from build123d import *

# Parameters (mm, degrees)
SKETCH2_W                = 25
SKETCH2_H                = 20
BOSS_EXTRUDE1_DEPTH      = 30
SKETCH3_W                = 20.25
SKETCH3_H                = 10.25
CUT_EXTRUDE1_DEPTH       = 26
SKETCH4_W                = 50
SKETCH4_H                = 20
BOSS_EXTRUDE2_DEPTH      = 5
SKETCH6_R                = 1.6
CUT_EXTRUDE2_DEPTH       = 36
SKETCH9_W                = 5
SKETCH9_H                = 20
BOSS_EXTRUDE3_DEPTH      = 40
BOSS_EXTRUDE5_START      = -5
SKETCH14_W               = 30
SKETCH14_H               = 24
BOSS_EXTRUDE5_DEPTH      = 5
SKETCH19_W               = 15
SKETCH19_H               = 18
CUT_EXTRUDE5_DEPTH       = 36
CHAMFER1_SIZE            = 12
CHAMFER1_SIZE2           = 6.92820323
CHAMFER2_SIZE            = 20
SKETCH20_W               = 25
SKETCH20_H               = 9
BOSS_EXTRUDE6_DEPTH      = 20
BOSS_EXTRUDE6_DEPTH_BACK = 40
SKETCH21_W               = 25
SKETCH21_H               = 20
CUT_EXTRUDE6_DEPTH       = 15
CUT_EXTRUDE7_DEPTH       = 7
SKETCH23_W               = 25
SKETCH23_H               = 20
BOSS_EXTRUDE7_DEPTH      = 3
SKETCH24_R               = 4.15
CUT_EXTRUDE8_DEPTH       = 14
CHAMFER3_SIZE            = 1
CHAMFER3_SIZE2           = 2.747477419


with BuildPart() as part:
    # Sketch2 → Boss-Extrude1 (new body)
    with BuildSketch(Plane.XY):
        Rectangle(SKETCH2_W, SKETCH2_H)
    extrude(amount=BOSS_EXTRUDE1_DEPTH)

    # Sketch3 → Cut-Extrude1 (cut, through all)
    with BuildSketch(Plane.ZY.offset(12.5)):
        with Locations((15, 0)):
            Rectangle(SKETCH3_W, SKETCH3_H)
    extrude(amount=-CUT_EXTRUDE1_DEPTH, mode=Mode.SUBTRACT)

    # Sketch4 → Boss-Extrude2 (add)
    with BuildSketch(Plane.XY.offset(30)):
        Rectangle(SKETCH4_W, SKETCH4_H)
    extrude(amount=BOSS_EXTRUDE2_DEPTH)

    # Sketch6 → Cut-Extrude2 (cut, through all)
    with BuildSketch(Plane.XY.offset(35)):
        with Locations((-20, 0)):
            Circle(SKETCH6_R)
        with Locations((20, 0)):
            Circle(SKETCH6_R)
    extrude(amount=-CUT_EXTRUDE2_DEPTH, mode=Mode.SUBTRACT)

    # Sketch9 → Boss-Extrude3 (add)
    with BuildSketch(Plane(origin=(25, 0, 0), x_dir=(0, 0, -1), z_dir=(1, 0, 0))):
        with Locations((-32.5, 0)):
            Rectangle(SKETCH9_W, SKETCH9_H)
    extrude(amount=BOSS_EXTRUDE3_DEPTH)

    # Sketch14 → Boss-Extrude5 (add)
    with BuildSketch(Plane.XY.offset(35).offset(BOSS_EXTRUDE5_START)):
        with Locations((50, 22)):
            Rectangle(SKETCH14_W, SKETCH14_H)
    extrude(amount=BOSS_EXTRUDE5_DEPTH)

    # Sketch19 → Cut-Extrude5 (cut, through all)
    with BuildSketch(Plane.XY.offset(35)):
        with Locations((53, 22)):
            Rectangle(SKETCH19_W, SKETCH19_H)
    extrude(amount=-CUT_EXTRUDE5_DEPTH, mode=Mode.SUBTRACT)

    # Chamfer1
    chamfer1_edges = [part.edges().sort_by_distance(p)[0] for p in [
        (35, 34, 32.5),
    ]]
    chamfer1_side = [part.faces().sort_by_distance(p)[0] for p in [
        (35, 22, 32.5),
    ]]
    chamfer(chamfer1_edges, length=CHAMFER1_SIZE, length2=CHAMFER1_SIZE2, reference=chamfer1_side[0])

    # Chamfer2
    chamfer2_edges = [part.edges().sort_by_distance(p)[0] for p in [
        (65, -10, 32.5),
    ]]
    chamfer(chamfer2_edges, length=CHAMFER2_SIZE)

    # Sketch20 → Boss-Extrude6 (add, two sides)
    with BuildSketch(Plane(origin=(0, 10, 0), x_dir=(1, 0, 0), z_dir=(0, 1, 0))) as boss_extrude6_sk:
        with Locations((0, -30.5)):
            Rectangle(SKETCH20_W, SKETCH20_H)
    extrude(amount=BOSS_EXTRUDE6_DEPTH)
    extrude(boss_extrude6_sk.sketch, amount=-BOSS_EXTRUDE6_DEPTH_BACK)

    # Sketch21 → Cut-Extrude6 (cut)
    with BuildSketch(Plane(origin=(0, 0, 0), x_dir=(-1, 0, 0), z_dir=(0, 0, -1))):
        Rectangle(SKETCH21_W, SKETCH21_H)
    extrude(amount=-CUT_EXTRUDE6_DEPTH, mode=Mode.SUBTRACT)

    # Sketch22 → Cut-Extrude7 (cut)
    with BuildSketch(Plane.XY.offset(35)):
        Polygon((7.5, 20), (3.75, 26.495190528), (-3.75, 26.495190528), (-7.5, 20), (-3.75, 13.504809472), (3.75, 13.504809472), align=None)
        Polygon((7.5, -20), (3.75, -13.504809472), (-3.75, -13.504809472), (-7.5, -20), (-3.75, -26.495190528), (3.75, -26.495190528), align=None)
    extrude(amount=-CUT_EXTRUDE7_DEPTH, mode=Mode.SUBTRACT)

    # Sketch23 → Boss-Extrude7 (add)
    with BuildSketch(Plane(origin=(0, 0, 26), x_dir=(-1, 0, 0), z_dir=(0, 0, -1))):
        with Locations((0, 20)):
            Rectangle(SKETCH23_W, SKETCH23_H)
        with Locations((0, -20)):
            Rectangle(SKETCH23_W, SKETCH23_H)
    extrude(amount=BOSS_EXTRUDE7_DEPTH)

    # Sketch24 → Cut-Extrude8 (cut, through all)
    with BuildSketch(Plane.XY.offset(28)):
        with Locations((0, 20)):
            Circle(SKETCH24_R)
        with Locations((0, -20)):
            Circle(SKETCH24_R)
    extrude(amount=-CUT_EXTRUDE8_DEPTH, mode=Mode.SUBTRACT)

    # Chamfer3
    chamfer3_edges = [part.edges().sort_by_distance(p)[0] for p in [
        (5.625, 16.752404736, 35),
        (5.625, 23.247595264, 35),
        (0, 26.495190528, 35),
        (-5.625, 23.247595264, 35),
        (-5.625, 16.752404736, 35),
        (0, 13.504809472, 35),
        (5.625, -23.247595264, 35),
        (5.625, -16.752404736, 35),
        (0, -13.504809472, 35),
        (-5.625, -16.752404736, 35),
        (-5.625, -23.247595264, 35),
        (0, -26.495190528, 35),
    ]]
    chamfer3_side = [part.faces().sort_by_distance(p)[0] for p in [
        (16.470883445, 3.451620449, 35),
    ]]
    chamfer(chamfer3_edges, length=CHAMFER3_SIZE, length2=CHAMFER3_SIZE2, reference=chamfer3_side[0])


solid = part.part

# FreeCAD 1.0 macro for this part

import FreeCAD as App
import Part
import Sketcher
from FreeCAD import Vector
Q = App.Units.Quantity


def edges_at(feature, points):
    """Names of the edges that pass closest to the given points."""
    edges = feature.Shape.Edges
    near = lambda p: min(range(len(edges)), key=lambda i: edges[i].distToShape(Part.Vertex(*p))[0])
    return sorted({f"Edge{near(p) + 1}" for p in points})


def add_polygon(sketch, points):
    """Adds a closed chain of lines whose ends are joined by coincident constraints."""
    first, n = sketch.GeometryCount, len(points)
    for a, b in zip(points, points[1:] + points[:1]):
        sketch.addGeometry(Part.LineSegment(App.Vector(*a, 0), App.Vector(*b, 0)), False)
    for i in range(n):
        sketch.addConstraint(Sketcher.Constraint("Coincident", first + i, 2, first + (i + 1) % n, 1))

doc = App.newDocument("Part")
params = doc.addObject("Spreadsheet::Sheet", "Params")
for row, (alias, value) in enumerate([
    ("sketch1_width", "25 mm"),
    ("sketch1_height", "20 mm"),
    ("pad1_length", "30 mm"),
    ("sketch2_width", "10.25 mm"),
    ("sketch2_height", "20.25 mm"),
    ("sketch3_width", "50 mm"),
    ("sketch3_height", "20 mm"),
    ("pad2_length", "5 mm"),
    ("sketch4_diameter", "3.2 mm"),
    ("sketch5_width", "20 mm"),
    ("sketch5_height", "5 mm"),
    ("pad3_length", "40 mm"),
    ("sketch6_width", "30 mm"),
    ("sketch6_height", "24 mm"),
    ("pad4_length", "5 mm"),
    ("sketch7_width", "15 mm"),
    ("sketch7_height", "18 mm"),
    ("chamfer_size", "12 mm"),
    ("chamfer_size2", "6.928203 mm"),
    ("chamfer2_size", "20 mm"),
    ("sketch8_width", "25 mm"),
    ("sketch8_height", "9 mm"),
    ("pad5_length", "20 mm"),
    ("pad5_length2", "40 mm"),
    ("sketch9_width", "25 mm"),
    ("sketch9_height", "20 mm"),
    ("pocket4_length", "15 mm"),
    ("sketch10_width", "7.5 mm"),
    ("pocket5_length", "7 mm"),
    ("sketch11_width", "25 mm"),
    ("sketch11_height", "20 mm"),
    ("pad6_length", "3 mm"),
    ("sketch12_diameter", "8.3 mm"),
    ("chamfer3_size", "1 mm"),
    ("chamfer3_size2", "2.747477 mm"),
], start=1):
    params.set(f"A{row}", alias)
    params.set(f"B{row}", "=" + value)
    params.setAlias(f"B{row}", alias)

body = doc.addObject("PartDesign::Body", "Body")

sketch1 = doc.addObject("Sketcher::SketchObject", "Sketch")
body.addObject(sketch1)
sketch1.AttachmentSupport = (doc.XY_Plane, [""])
sketch1.MapMode = "FlatFace"
add_polygon(sketch1, [(-12, 10), (-12, -10), (12, -10), (12, 10)])
sketch1.addConstraint(Sketcher.Constraint("Vertical", 0))
sketch1.addConstraint(Sketcher.Constraint("Horizontal", 1))
sketch1.addConstraint(Sketcher.Constraint("Vertical", 2))
sketch1.addConstraint(Sketcher.Constraint("Horizontal", 3))
sketch1.addConstraint(Sketcher.Constraint("Symmetric", 0, 2, 2, 2, -1, 1))
sketch1.addConstraint(Sketcher.Constraint("DistanceX", 1, 1, 1, 2, Q("25 mm")))
sketch1.addConstraint(Sketcher.Constraint("DistanceY", 0, 2, 0, 1, Q("20 mm")))
sketch1.setExpression("Constraints[9]", "Params.sketch1_width")
sketch1.setExpression("Constraints[10]", "Params.sketch1_height")
pad1 = doc.addObject("PartDesign::Pad", "Pad")
body.addObject(pad1)
pad1.Profile = sketch1
pad1.setExpression("Length", "Params.pad1_length")

sketch2 = doc.addObject("Sketcher::SketchObject", "Sketch001")
body.addObject(sketch2)
sketch2.AttachmentSupport = (doc.YZ_Plane, [""])
sketch2.MapMode = "FlatFace"
sketch2.AttachmentOffset = App.Placement(Vector(0, 0, -12.5), App.Rotation())
add_polygon(sketch2, [(5, 5), (-5, 5), (-5, 25), (5, 25)])
sketch2.addConstraint(Sketcher.Constraint("Horizontal", 0))
sketch2.addConstraint(Sketcher.Constraint("Vertical", 1))
sketch2.addConstraint(Sketcher.Constraint("Horizontal", 2))
sketch2.addConstraint(Sketcher.Constraint("Vertical", 3))
sketch2.addConstraint(Sketcher.Constraint("DistanceX", 0, 2, 0, 1, Q("10.25 mm")))
sketch2.addConstraint(Sketcher.Constraint("DistanceY", 1, 1, 1, 2, Q("20.25 mm")))
sketch2.addConstraint(Sketcher.Constraint("DistanceX", 0, 2, -1, 1, Q("5.125 mm")))
sketch2.addConstraint(Sketcher.Constraint("DistanceY", -1, 1, 0, 2, Q("4.875 mm")))
sketch2.setExpression("Constraints[8]", "Params.sketch2_width")
sketch2.setExpression("Constraints[9]", "Params.sketch2_height")
pocket1 = doc.addObject("PartDesign::Pocket", "Pocket")
body.addObject(pocket1)
pocket1.Profile = sketch2
pocket1.Type = "ThroughAll"
pocket1.Reversed = True

sketch3 = doc.addObject("Sketcher::SketchObject", "Sketch002")
body.addObject(sketch3)
sketch3.AttachmentSupport = (doc.XY_Plane, [""])
sketch3.MapMode = "FlatFace"
sketch3.AttachmentOffset = App.Placement(Vector(0, 0, 30), App.Rotation())
add_polygon(sketch3, [(-25, 10), (-25, -10), (25, -10), (25, 10)])
sketch3.addConstraint(Sketcher.Constraint("Vertical", 0))
sketch3.addConstraint(Sketcher.Constraint("Horizontal", 1))
sketch3.addConstraint(Sketcher.Constraint("Vertical", 2))
sketch3.addConstraint(Sketcher.Constraint("Horizontal", 3))
sketch3.addConstraint(Sketcher.Constraint("Symmetric", 0, 2, 2, 2, -1, 1))
sketch3.addConstraint(Sketcher.Constraint("DistanceX", 1, 1, 1, 2, Q("50 mm")))
sketch3.addConstraint(Sketcher.Constraint("DistanceY", 0, 2, 0, 1, Q("20 mm")))
sketch3.setExpression("Constraints[9]", "Params.sketch3_width")
sketch3.setExpression("Constraints[10]", "Params.sketch3_height")
pad2 = doc.addObject("PartDesign::Pad", "Pad001")
body.addObject(pad2)
pad2.Profile = sketch3
pad2.setExpression("Length", "Params.pad2_length")

sketch4 = doc.addObject("Sketcher::SketchObject", "Sketch003")
body.addObject(sketch4)
sketch4.AttachmentSupport = (doc.XY_Plane, [""])
sketch4.MapMode = "FlatFace"
sketch4.AttachmentOffset = App.Placement(Vector(0, 0, 35), App.Rotation())
sketch4.addGeometry(Part.Circle(Vector(-20, 0, 0), Vector(0, 0, 1), 1.6), False)
sketch4.addGeometry(Part.Circle(Vector(20, 0, 0), Vector(0, 0, 1), 1.6), False)
sketch4.addConstraint(Sketcher.Constraint("Equal", 0, 1))
sketch4.addConstraint(Sketcher.Constraint("Symmetric", 0, 3, 1, 3, -1, 1))
sketch4.addConstraint(Sketcher.Constraint("PointOnObject", 0, 3, -1))
sketch4.addConstraint(Sketcher.Constraint("Diameter", 0, Q("3.2 mm")))
sketch4.addConstraint(Sketcher.Constraint("DistanceX", 0, 3, -1, 1, Q("20 mm")))
sketch4.setExpression("Constraints[3]", "Params.sketch4_diameter")
pocket2 = doc.addObject("PartDesign::Pocket", "Pocket001")
body.addObject(pocket2)
pocket2.Profile = sketch4
pocket2.Type = "ThroughAll"

sketch5 = doc.addObject("Sketcher::SketchObject", "Sketch004")
body.addObject(sketch5)
sketch5.AttachmentSupport = (doc.YZ_Plane, [""])
sketch5.MapMode = "FlatFace"
sketch5.AttachmentOffset = App.Placement(Vector(0, 0, 25), App.Rotation())
add_polygon(sketch5, [(10, 35), (-10, 35), (-10, 30), (10, 30)])
sketch5.addConstraint(Sketcher.Constraint("Horizontal", 0))
sketch5.addConstraint(Sketcher.Constraint("Vertical", 1))
sketch5.addConstraint(Sketcher.Constraint("Horizontal", 2))
sketch5.addConstraint(Sketcher.Constraint("Vertical", 3))
sketch5.addConstraint(Sketcher.Constraint("DistanceX", 0, 2, 0, 1, Q("20 mm")))
sketch5.addConstraint(Sketcher.Constraint("DistanceY", 1, 2, 1, 1, Q("5 mm")))
sketch5.addConstraint(Sketcher.Constraint("DistanceX", 0, 2, -1, 1, Q("10 mm")))
sketch5.addConstraint(Sketcher.Constraint("DistanceY", -1, 1, 0, 2, Q("35 mm")))
sketch5.setExpression("Constraints[8]", "Params.sketch5_width")
sketch5.setExpression("Constraints[9]", "Params.sketch5_height")
pad3 = doc.addObject("PartDesign::Pad", "Pad002")
body.addObject(pad3)
pad3.Profile = sketch5
pad3.setExpression("Length", "Params.pad3_length")

sketch6 = doc.addObject("Sketcher::SketchObject", "Sketch005")
body.addObject(sketch6)
sketch6.AttachmentSupport = (doc.XY_Plane, [""])
sketch6.MapMode = "FlatFace"
sketch6.AttachmentOffset = App.Placement(Vector(0, 0, 30), App.Rotation())
add_polygon(sketch6, [(35, 34), (35, 10), (65, 10), (65, 34)])
sketch6.addConstraint(Sketcher.Constraint("Vertical", 0))
sketch6.addConstraint(Sketcher.Constraint("Horizontal", 1))
sketch6.addConstraint(Sketcher.Constraint("Vertical", 2))
sketch6.addConstraint(Sketcher.Constraint("Horizontal", 3))
sketch6.addConstraint(Sketcher.Constraint("DistanceX", 1, 1, 1, 2, Q("30 mm")))
sketch6.addConstraint(Sketcher.Constraint("DistanceY", 0, 2, 0, 1, Q("24 mm")))
sketch6.addConstraint(Sketcher.Constraint("DistanceX", -1, 1, 0, 2, Q("35 mm")))
sketch6.addConstraint(Sketcher.Constraint("DistanceY", -1, 1, 0, 2, Q("10 mm")))
sketch6.setExpression("Constraints[8]", "Params.sketch6_width")
sketch6.setExpression("Constraints[9]", "Params.sketch6_height")
pad4 = doc.addObject("PartDesign::Pad", "Pad003")
body.addObject(pad4)
pad4.Profile = sketch6
pad4.setExpression("Length", "Params.pad4_length")

sketch7 = doc.addObject("Sketcher::SketchObject", "Sketch006")
body.addObject(sketch7)
sketch7.AttachmentSupport = (doc.XY_Plane, [""])
sketch7.MapMode = "FlatFace"
sketch7.AttachmentOffset = App.Placement(Vector(0, 0, 35), App.Rotation())
add_polygon(sketch7, [(46, 31), (46, 13), (60, 13), (60, 31)])
sketch7.addConstraint(Sketcher.Constraint("Vertical", 0))
sketch7.addConstraint(Sketcher.Constraint("Horizontal", 1))
sketch7.addConstraint(Sketcher.Constraint("Vertical", 2))
sketch7.addConstraint(Sketcher.Constraint("Horizontal", 3))
sketch7.addConstraint(Sketcher.Constraint("DistanceX", 1, 1, 1, 2, Q("15 mm")))
sketch7.addConstraint(Sketcher.Constraint("DistanceY", 0, 2, 0, 1, Q("18 mm")))
sketch7.addConstraint(Sketcher.Constraint("DistanceY", -1, 1, 0, 2, Q("13 mm")))
sketch7.addConstraint(Sketcher.Constraint("DistanceX", -1, 1, 0, 2, Q("45.5 mm")))
sketch7.setExpression("Constraints[8]", "Params.sketch7_width")
sketch7.setExpression("Constraints[9]", "Params.sketch7_height")
pocket3 = doc.addObject("PartDesign::Pocket", "Pocket002")
body.addObject(pocket3)
pocket3.Profile = sketch7
pocket3.Type = "ThroughAll"
doc.recompute()

chamfer = doc.addObject("PartDesign::Chamfer", "Chamfer")
body.addObject(chamfer)
chamfer.Base = (pocket3, edges_at(pocket3, [(35, 34, 32.5)]))
chamfer.ChamferType = "Two distances"
chamfer.setExpression("Size", "Params.chamfer_size")
chamfer.setExpression("Size2", "Params.chamfer_size2")
doc.recompute()

chamfer2 = doc.addObject("PartDesign::Chamfer", "Chamfer001")
body.addObject(chamfer2)
chamfer2.Base = (chamfer, edges_at(chamfer, [(65, -10, 32.5)]))
chamfer2.setExpression("Size", "Params.chamfer2_size")

sketch8 = doc.addObject("Sketcher::SketchObject", "Sketch007")
body.addObject(sketch8)
sketch8.AttachmentSupport = (doc.XZ_Plane, [""])
sketch8.MapMode = "FlatFace"
sketch8.AttachmentOffset = App.Placement(Vector(0, 0, -10), App.Rotation())
add_polygon(sketch8, [(-12, 26), (-12, 35), (12, 35), (12, 26)])
sketch8.addConstraint(Sketcher.Constraint("Vertical", 0))
sketch8.addConstraint(Sketcher.Constraint("Horizontal", 1))
sketch8.addConstraint(Sketcher.Constraint("Vertical", 2))
sketch8.addConstraint(Sketcher.Constraint("Horizontal", 3))
sketch8.addConstraint(Sketcher.Constraint("DistanceX", 1, 1, 1, 2, Q("25 mm")))
sketch8.addConstraint(Sketcher.Constraint("DistanceY", 0, 1, 0, 2, Q("9 mm")))
sketch8.addConstraint(Sketcher.Constraint("DistanceY", -1, 1, 0, 2, Q("35 mm")))
sketch8.addConstraint(Sketcher.Constraint("DistanceX", 0, 2, -1, 1, Q("12.5 mm")))
sketch8.setExpression("Constraints[8]", "Params.sketch8_width")
sketch8.setExpression("Constraints[9]", "Params.sketch8_height")
pad5 = doc.addObject("PartDesign::Pad", "Pad004")
body.addObject(pad5)
pad5.Profile = sketch8
pad5.Type = "TwoLengths"
pad5.setExpression("Length", "Params.pad5_length")
pad5.setExpression("Length2", "Params.pad5_length2")
pad5.Reversed = True

sketch9 = doc.addObject("Sketcher::SketchObject", "Sketch008")
body.addObject(sketch9)
sketch9.AttachmentSupport = (doc.XY_Plane, [""])
sketch9.MapMode = "FlatFace"
add_polygon(sketch9, [(12, 10), (12, -10), (-12, -10), (-12, 10)])
sketch9.addConstraint(Sketcher.Constraint("Vertical", 0))
sketch9.addConstraint(Sketcher.Constraint("Horizontal", 1))
sketch9.addConstraint(Sketcher.Constraint("Vertical", 2))
sketch9.addConstraint(Sketcher.Constraint("Horizontal", 3))
sketch9.addConstraint(Sketcher.Constraint("Symmetric", 0, 2, 2, 2, -1, 1))
sketch9.addConstraint(Sketcher.Constraint("DistanceX", 1, 2, 1, 1, Q("25 mm")))
sketch9.addConstraint(Sketcher.Constraint("DistanceY", 0, 2, 0, 1, Q("20 mm")))
sketch9.setExpression("Constraints[9]", "Params.sketch9_width")
sketch9.setExpression("Constraints[10]", "Params.sketch9_height")
pocket4 = doc.addObject("PartDesign::Pocket", "Pocket003")
body.addObject(pocket4)
pocket4.Profile = sketch9
pocket4.setExpression("Length", "Params.pocket4_length")
pocket4.Reversed = True

sketch10 = doc.addObject("Sketcher::SketchObject", "Sketch009")
body.addObject(sketch10)
sketch10.AttachmentSupport = (doc.XY_Plane, [""])
sketch10.MapMode = "FlatFace"
sketch10.AttachmentOffset = App.Placement(Vector(0, 0, 35), App.Rotation())
add_polygon(sketch10, [(8, 20), (4, 26), (-4, 26), (-8, 20), (-4, 14), (4, 14)])
add_polygon(sketch10, [(8, -20), (4, -14), (-4, -14), (-8, -20), (-4, -26), (4, -26)])
sketch10.addConstraint(Sketcher.Constraint("Horizontal", 1))
sketch10.addConstraint(Sketcher.Constraint("Horizontal", 4))
sketch10.addConstraint(Sketcher.Constraint("Horizontal", 7))
sketch10.addConstraint(Sketcher.Constraint("Horizontal", 10))
sketch10.addConstraint(Sketcher.Constraint("Symmetric", 3, 2, 6, 2, -1, 1))
sketch10.addConstraint(Sketcher.Constraint("Symmetric", 5, 2, 8, 2, -1, 1))
sketch10.addConstraint(Sketcher.Constraint("Symmetric", 0, 2, 9, 2, -1, 1))
sketch10.addConstraint(Sketcher.Constraint("Symmetric", 2, 2, 11, 2, -1, 1))
sketch10.addConstraint(Sketcher.Constraint("Symmetric", 2, 2, 5, 2, -2))
sketch10.addConstraint(Sketcher.Constraint("Parallel", 0, 3))
sketch10.addConstraint(Sketcher.Constraint("Parallel", 2, 5))
sketch10.addConstraint(Sketcher.Constraint("Parallel", 5, 8))
sketch10.addConstraint(Sketcher.Constraint("Parallel", 8, 11))
sketch10.addConstraint(Sketcher.Constraint("Vertical", 1, 2, 3, 2))
sketch10.addConstraint(Sketcher.Constraint("Vertical", 0, 2, 4, 2))
sketch10.addConstraint(Sketcher.Constraint("Angle", 0, Q("120 deg")))
sketch10.addConstraint(Sketcher.Constraint("DistanceX", 1, 2, 1, 1, Q("7.5 mm")))
sketch10.addConstraint(Sketcher.Constraint("DistanceY", -1, 1, 2, 2, Q("20 mm")))
sketch10.addConstraint(Sketcher.Constraint("DistanceX", 2, 2, 5, 2, Q("15 mm")))
sketch10.setExpression("Constraints[28]", "Params.sketch10_width")
pocket5 = doc.addObject("PartDesign::Pocket", "Pocket004")
body.addObject(pocket5)
pocket5.Profile = sketch10
pocket5.setExpression("Length", "Params.pocket5_length")

sketch11 = doc.addObject("Sketcher::SketchObject", "Sketch010")
body.addObject(sketch11)
sketch11.AttachmentSupport = (doc.XY_Plane, [""])
sketch11.MapMode = "FlatFace"
sketch11.AttachmentOffset = App.Placement(Vector(0, 0, 26), App.Rotation())
add_polygon(sketch11, [(12, 30), (12, 10), (-12, 10), (-12, 30)])
add_polygon(sketch11, [(12, -10), (12, -30), (-12, -30), (-12, -10)])
sketch11.addConstraint(Sketcher.Constraint("Vertical", 0))
sketch11.addConstraint(Sketcher.Constraint("Horizontal", 1))
sketch11.addConstraint(Sketcher.Constraint("Vertical", 2))
sketch11.addConstraint(Sketcher.Constraint("Horizontal", 3))
sketch11.addConstraint(Sketcher.Constraint("Vertical", 4))
sketch11.addConstraint(Sketcher.Constraint("Horizontal", 5))
sketch11.addConstraint(Sketcher.Constraint("Vertical", 6))
sketch11.addConstraint(Sketcher.Constraint("Horizontal", 7))
sketch11.addConstraint(Sketcher.Constraint("Symmetric", 2, 2, 4, 2, -1, 1))
sketch11.addConstraint(Sketcher.Constraint("Symmetric", 0, 2, 6, 2, -1, 1))
sketch11.addConstraint(Sketcher.Constraint("Vertical", 3, 2, 4, 2))
sketch11.addConstraint(Sketcher.Constraint("DistanceX", 1, 2, 1, 1, Q("25 mm")))
sketch11.addConstraint(Sketcher.Constraint("DistanceY", 0, 2, 0, 1, Q("20 mm")))
sketch11.addConstraint(Sketcher.Constraint("DistanceY", -1, 1, 0, 2, Q("10 mm")))
sketch11.setExpression("Constraints[19]", "Params.sketch11_width")
sketch11.setExpression("Constraints[20]", "Params.sketch11_height")
pad6 = doc.addObject("PartDesign::Pad", "Pad005")
body.addObject(pad6)
pad6.Profile = sketch11
pad6.setExpression("Length", "Params.pad6_length")
pad6.Reversed = True

sketch12 = doc.addObject("Sketcher::SketchObject", "Sketch011")
body.addObject(sketch12)
sketch12.AttachmentSupport = (doc.XY_Plane, [""])
sketch12.MapMode = "FlatFace"
sketch12.AttachmentOffset = App.Placement(Vector(0, 0, 28), App.Rotation())
sketch12.addGeometry(Part.Circle(Vector(0, 20, 0), Vector(0, 0, 1), 4.2), False)
sketch12.addGeometry(Part.Circle(Vector(0, -20, 0), Vector(0, 0, 1), 4.2), False)
sketch12.addConstraint(Sketcher.Constraint("Equal", 0, 1))
sketch12.addConstraint(Sketcher.Constraint("Symmetric", 0, 3, 1, 3, -1, 1))
sketch12.addConstraint(Sketcher.Constraint("PointOnObject", 0, 3, -2))
sketch12.addConstraint(Sketcher.Constraint("Diameter", 0, Q("8.3 mm")))
sketch12.addConstraint(Sketcher.Constraint("DistanceY", -1, 1, 0, 3, Q("20 mm")))
sketch12.setExpression("Constraints[3]", "Params.sketch12_diameter")
pocket6 = doc.addObject("PartDesign::Pocket", "Pocket005")
body.addObject(pocket6)
pocket6.Profile = sketch12
pocket6.Type = "ThroughAll"
doc.recompute()

chamfer3 = doc.addObject("PartDesign::Chamfer", "Chamfer002")
body.addObject(chamfer3)
chamfer3.Base = (pocket6, edges_at(pocket6, [
    (5.625, 16.752, 35),
    (5.625, 23.248, 35),
    (0, 26.495, 35),
    (-5.625, 23.248, 35),
    (-5.625, 16.752, 35),
    (0, 13.505, 35),
    (5.625, -23.248, 35),
    (5.625, -16.752, 35),
    (0, -13.505, 35),
    (-5.625, -16.752, 35),
    (-5.625, -23.248, 35),
    (0, -26.495, 35),
]))
chamfer3.ChamferType = "Two distances"
chamfer3.setExpression("Size", "Params.chamfer3_size")
chamfer3.setExpression("Size2", "Params.chamfer3_size2")

doc.recompute()
